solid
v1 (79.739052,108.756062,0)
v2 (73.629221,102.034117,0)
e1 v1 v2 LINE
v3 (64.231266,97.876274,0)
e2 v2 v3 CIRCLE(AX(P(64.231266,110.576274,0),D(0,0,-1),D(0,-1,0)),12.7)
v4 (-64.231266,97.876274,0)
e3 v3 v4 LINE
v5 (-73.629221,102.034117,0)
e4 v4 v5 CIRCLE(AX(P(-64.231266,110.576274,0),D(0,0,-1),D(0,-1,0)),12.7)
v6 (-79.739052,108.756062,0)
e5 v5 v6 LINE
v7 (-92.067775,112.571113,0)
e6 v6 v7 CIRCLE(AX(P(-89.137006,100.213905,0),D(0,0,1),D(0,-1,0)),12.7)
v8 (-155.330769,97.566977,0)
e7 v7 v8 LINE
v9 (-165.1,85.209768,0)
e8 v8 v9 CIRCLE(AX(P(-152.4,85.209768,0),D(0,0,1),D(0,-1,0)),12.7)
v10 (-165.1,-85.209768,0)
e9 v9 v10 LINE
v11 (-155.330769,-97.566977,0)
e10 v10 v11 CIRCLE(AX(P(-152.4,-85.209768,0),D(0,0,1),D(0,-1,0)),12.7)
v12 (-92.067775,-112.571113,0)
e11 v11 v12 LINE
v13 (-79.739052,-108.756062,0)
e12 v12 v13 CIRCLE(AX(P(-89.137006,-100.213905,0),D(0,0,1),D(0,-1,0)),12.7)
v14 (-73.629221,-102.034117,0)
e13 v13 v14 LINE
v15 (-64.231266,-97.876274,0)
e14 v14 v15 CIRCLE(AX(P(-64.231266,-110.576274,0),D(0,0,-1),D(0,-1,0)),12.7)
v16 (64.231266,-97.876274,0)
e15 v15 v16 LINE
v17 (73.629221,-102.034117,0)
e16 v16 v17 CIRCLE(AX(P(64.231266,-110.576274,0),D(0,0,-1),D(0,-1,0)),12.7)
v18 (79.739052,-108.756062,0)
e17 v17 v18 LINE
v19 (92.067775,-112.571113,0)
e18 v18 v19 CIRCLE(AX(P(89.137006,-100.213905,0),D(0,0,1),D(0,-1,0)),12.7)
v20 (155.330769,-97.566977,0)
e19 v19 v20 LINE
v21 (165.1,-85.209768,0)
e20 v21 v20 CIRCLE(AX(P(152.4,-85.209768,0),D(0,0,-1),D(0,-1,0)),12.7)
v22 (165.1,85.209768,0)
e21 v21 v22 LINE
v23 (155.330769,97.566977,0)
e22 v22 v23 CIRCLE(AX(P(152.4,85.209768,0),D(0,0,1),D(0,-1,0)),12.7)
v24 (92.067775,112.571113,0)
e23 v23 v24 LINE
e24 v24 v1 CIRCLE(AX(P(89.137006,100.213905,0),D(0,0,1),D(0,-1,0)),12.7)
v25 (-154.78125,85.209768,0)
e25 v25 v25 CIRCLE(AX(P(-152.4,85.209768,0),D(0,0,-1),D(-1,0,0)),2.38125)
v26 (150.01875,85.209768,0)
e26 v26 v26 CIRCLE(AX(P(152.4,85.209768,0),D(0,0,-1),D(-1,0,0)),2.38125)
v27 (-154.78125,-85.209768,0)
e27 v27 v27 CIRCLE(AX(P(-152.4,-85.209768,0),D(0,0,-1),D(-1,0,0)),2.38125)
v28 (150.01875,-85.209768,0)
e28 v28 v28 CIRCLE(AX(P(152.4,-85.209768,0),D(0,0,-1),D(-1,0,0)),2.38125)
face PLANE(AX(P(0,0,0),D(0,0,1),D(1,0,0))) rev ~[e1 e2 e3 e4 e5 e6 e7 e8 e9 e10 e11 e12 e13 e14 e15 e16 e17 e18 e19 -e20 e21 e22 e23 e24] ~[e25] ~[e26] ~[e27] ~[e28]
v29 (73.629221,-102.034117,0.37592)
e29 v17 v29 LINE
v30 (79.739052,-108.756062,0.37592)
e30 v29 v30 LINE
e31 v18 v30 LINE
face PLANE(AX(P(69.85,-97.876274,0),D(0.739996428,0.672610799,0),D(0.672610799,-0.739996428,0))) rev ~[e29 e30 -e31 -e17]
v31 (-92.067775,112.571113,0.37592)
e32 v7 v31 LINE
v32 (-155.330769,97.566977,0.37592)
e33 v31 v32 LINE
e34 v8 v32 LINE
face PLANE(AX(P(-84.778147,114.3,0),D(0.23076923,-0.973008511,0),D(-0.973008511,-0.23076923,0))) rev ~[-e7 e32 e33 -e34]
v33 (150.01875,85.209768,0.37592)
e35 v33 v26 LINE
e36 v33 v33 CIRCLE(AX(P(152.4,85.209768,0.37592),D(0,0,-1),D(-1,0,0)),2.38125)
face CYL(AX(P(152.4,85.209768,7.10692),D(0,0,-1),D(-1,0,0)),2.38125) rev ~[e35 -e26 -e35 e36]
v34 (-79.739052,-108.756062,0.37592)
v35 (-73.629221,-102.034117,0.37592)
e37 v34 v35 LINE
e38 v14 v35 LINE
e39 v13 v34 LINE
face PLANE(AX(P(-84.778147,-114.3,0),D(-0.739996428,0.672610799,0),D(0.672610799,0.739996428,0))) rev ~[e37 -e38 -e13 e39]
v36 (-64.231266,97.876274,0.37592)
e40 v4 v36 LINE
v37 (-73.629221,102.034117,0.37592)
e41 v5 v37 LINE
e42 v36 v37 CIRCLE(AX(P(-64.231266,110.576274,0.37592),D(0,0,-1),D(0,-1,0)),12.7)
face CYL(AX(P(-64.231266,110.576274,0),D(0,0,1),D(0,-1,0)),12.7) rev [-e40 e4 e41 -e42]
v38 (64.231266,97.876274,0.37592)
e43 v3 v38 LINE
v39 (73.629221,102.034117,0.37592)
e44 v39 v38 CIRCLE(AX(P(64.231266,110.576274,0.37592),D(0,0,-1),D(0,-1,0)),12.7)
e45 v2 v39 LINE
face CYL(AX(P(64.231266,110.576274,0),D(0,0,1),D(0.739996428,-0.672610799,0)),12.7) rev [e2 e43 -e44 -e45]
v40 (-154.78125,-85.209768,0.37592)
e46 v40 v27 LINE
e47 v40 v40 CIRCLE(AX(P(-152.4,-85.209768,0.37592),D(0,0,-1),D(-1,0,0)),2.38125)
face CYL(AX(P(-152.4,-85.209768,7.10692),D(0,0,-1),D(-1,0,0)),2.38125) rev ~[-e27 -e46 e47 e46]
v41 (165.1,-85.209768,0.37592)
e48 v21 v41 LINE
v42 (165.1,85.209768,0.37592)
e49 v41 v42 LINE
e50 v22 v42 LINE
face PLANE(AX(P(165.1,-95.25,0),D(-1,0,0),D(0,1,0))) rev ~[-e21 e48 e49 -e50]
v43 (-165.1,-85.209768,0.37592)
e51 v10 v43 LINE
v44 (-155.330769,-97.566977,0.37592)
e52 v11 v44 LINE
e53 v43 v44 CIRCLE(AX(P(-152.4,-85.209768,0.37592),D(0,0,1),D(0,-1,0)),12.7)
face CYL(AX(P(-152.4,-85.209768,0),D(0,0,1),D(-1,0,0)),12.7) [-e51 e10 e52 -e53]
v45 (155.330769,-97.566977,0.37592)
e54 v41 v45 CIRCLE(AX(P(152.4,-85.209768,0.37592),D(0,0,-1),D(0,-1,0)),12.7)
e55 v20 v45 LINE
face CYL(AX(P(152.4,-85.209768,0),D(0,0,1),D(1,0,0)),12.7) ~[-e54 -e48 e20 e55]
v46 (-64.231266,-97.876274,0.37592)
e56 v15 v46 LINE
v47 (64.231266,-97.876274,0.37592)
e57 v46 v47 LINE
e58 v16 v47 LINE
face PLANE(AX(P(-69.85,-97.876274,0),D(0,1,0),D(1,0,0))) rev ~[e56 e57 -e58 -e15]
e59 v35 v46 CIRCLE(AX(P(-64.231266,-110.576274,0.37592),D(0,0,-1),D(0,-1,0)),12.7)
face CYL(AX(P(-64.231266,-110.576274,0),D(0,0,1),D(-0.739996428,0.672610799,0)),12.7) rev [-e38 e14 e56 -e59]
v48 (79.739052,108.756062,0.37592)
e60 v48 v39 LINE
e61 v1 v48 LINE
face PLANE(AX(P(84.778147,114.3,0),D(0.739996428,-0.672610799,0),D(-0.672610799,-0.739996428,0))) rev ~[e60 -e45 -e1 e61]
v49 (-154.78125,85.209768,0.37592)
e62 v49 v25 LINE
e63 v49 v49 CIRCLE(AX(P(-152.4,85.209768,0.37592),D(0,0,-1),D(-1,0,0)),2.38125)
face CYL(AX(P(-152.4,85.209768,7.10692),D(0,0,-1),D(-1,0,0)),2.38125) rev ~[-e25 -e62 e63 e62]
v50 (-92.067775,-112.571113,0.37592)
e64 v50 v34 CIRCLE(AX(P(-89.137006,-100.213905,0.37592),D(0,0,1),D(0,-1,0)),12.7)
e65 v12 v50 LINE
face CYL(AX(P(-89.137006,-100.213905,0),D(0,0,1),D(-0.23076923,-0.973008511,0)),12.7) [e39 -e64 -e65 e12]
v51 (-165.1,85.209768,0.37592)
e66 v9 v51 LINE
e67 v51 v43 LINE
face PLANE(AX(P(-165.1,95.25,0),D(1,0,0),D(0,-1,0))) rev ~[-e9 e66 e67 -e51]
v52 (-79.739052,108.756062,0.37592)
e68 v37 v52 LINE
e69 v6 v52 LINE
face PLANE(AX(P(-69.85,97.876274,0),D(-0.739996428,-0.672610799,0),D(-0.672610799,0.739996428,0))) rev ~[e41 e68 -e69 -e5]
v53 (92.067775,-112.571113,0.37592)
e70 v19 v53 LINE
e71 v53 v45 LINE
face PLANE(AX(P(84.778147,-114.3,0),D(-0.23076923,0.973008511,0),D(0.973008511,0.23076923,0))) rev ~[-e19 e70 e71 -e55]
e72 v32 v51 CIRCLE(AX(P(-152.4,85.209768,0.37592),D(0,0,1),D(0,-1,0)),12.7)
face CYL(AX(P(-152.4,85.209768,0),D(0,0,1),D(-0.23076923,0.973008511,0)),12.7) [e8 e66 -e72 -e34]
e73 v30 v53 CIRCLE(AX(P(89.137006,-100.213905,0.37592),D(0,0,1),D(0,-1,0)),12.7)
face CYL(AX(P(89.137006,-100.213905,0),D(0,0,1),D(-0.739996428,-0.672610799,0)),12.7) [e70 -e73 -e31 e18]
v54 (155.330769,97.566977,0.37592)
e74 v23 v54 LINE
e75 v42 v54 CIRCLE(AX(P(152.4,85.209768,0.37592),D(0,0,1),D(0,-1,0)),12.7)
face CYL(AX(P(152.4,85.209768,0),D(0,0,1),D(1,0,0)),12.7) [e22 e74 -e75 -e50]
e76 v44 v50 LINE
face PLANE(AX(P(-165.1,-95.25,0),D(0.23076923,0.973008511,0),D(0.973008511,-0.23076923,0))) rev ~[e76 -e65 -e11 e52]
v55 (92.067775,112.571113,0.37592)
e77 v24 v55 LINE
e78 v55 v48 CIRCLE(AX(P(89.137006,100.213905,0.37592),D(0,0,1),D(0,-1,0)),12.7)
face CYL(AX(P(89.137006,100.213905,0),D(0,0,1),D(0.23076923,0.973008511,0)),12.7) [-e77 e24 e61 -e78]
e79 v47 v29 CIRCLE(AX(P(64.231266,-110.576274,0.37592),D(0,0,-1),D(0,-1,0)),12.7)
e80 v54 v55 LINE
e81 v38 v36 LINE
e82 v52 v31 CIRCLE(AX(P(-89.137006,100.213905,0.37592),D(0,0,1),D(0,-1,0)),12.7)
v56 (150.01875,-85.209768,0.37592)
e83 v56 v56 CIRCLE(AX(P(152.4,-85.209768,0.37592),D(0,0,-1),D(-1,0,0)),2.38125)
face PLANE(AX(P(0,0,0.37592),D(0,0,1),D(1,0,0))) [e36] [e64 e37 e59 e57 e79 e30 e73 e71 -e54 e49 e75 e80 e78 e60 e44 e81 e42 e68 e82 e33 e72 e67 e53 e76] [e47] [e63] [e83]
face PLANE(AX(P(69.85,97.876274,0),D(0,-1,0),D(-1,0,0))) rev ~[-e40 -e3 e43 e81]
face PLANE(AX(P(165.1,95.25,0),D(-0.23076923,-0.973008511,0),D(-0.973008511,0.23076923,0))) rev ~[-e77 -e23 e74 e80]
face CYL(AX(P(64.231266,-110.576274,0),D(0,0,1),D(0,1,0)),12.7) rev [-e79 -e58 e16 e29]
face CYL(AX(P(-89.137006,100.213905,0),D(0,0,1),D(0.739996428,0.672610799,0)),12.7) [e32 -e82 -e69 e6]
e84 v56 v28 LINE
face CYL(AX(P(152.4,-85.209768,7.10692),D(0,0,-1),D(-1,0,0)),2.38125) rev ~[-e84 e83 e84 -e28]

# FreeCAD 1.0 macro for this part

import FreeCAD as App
import Part
import Sketcher
from FreeCAD import Vector
Q = App.Units.Quantity


def edges_at(feature, points):
    """Names of the edges that pass closest to the given points."""
    edges = feature.Shape.Edges
    near = lambda p: min(range(len(edges)), key=lambda i: edges[i].distToShape(Part.Vertex(*p))[0])
    return sorted({f"Edge{near(p) + 1}" for p in points})

doc = App.newDocument("Part")
params = doc.addObject("Spreadsheet::Sheet", "Params")
for row, (alias, value) in enumerate([
    ("sketch1_width", "5.5 in"),
    ("sketch1_height", "7.5 in"),
    ("sketch1_length", "3.25 in"),
    ("pad1_length", "0.0148 in"),
    ("fillet_radius", "0.5 in"),
    ("sketch2_diameter", "0.1875 in"),
    ("hole_diameter", "0.1875 in"),
    ("hole_depth", "0.265 in"),
], start=1):
    params.set(f"A{row}", alias)
    params.set(f"B{row}", "=" + value)
    params.setAlias(f"B{row}", alias)

body = doc.addObject("PartDesign::Body", "Body")

sketch1 = body.newObject("Sketcher::SketchObject", "Sketch")
sketch1.AttachmentSupport = (doc.getObject("XY_Plane"), [""])
sketch1.MapMode = "FlatFace"
sketch1.addGeometry([
    Part.LineSegment(Vector(165, -95, 0), Vector(165, 95, 0)),
    Part.LineSegment(Vector(165, 95, 0), Vector(85, 114, 0)),
    Part.LineSegment(Vector(85, 114, 0), Vector(70, 98, 0)),
    Part.LineSegment(Vector(70, 98, 0), Vector(-70, 98, 0)),
    Part.LineSegment(Vector(-70, 98, 0), Vector(-85, 114, 0)),
    Part.LineSegment(Vector(-85, 114, 0), Vector(-165, 95, 0)),
    Part.LineSegment(Vector(-165, 95, 0), Vector(-165, -95, 0)),
    Part.LineSegment(Vector(-165, -95, 0), Vector(-85, -114, 0)),
    Part.LineSegment(Vector(-85, -114, 0), Vector(-70, -98, 0)),
    Part.LineSegment(Vector(-70, -98, 0), Vector(70, -98, 0)),
    Part.LineSegment(Vector(70, -98, 0), Vector(85, -114, 0)),
    Part.LineSegment(Vector(85, -114, 0), Vector(165, -95, 0)),
], False)
sketch1.addConstraint([
    Sketcher.Constraint("Coincident", 0, 2, 1, 1),
    Sketcher.Constraint("Coincident", 1, 2, 2, 1),
    Sketcher.Constraint("Coincident", 2, 2, 3, 1),
    Sketcher.Constraint("Coincident", 3, 2, 4, 1),
    Sketcher.Constraint("Coincident", 4, 2, 5, 1),
    Sketcher.Constraint("Coincident", 5, 2, 6, 1),
    Sketcher.Constraint("Coincident", 6, 2, 7, 1),
    Sketcher.Constraint("Coincident", 7, 2, 8, 1),
    Sketcher.Constraint("Coincident", 8, 2, 9, 1),
    Sketcher.Constraint("Coincident", 9, 2, 10, 1),
    Sketcher.Constraint("Coincident", 10, 2, 11, 1),
    Sketcher.Constraint("Coincident", 11, 2, 0, 1),
    Sketcher.Constraint("Vertical", 0),
    Sketcher.Constraint("Horizontal", 3),
    Sketcher.Constraint("Vertical", 6),
    Sketcher.Constraint("Horizontal", 9),
    Sketcher.Constraint("Symmetric", 0, 2, 6, 2, -1, 1),
    Sketcher.Constraint("Symmetric", 1, 2, 7, 2, -1, 1),
    Sketcher.Constraint("Symmetric", 2, 2, 8, 2, -1, 1),
    Sketcher.Constraint("Symmetric", 4, 2, 10, 2, -1, 1),
    Sketcher.Constraint("Symmetric", 1, 2, 4, 2, -2),
    Sketcher.Constraint("Parallel", 4, 10),
    Sketcher.Constraint("Parallel", 5, 11),
    Sketcher.Constraint("Horizontal", 0, 2, 5, 2),
    Sketcher.Constraint("Vertical", 3, 2, 8, 2),
    Sketcher.Constraint("DistanceX", 3, 2, 3, 1, Q("5.5 in")),
    Sketcher.Constraint("DistanceY", 0, 1, 0, 2, Q("7.5 in")),
    Sketcher.Constraint("DistanceX", 5, 2, 0, 2, Q("13 in")),
    Sketcher.Constraint("DistanceY", 7, 2, 4, 2, Q("9 in")),
    Sketcher.Constraint("Distance", 1, Q("3.25 in")),
    Sketcher.Constraint("Distance", 2, 22.194331),
])
sketch1.setExpression("Constraints[25]", "Params.sketch1_width")
sketch1.setExpression("Constraints[26]", "Params.sketch1_height")
sketch1.setExpression("Constraints[29]", "Params.sketch1_length")
pad1 = body.newObject("PartDesign::Pad", "Pad")
pad1.Profile = sketch1
pad1.setExpression("Length", "Params.pad1_length")
doc.recompute()

fillet = body.newObject("PartDesign::Fillet", "Fillet")
fillet.Base = (pad1, edges_at(pad1, [
    (-165.1, -95.25, 0.188),
    (-84.778, -114.3, 0.188),
    (-69.85, -97.876, 0.188),
    (69.85, -97.876, 0.188),
    (84.778, -114.3, 0.188),
    (165.1, -95.25, 0.188),
    (165.1, 95.25, 0.188),
    (84.778, 114.3, 0.188),
    (69.85, 97.876, 0.188),
    (-69.85, 97.876, 0.188),
    (-84.778, 114.3, 0.188),
    (-165.1, 95.25, 0.188),
]))
fillet.setExpression("Radius", "Params.fillet_radius")

sketch2 = body.newObject("Sketcher::SketchObject", "Sketch001")
sketch2.AttachmentSupport = (doc.getObject("XY_Plane"), [""])
sketch2.MapMode = "FlatFace"
sketch2.AttachmentOffset = App.Placement(Vector(0, 0, 0.0148 * 25.4), App.Rotation())
sketch2.addGeometry([
    Part.Circle(Vector(152.4, -85.2, 0), Vector(0, 0, 1), 2.4),
    Part.Circle(Vector(-152.4, -85.2, 0), Vector(0, 0, 1), 2.4),
    Part.Circle(Vector(-152.4, 85.2, 0), Vector(0, 0, 1), 2.4),
    Part.Circle(Vector(152.4, 85.2, 0), Vector(0, 0, 1), 2.4),
], False)
sketch2.addConstraint([
    Sketcher.Constraint("Equal", 0, 1),
    Sketcher.Constraint("Equal", 1, 2),
    Sketcher.Constraint("Equal", 2, 3),
    Sketcher.Constraint("Symmetric", 0, 3, 2, 3, -1, 1),
    Sketcher.Constraint("Symmetric", 1, 3, 3, 3, -1, 1),
    Sketcher.Constraint("Symmetric", 0, 3, 1, 3, -2),
    Sketcher.Constraint("Diameter", 0, Q("0.1875 in")),
    Sketcher.Constraint("DistanceX", -1, 1, 0, 3, Q("6 in")),
    Sketcher.Constraint("DistanceY", 0, 3, -1, 1, 85.209768),
])
sketch2.setExpression("Constraints[6]", "Params.sketch2_diameter")
doc.recompute()
hole = body.newObject("PartDesign::Hole", "Hole")
hole.Profile = sketch2
hole.ThreadType = "None"
hole.setExpression("Diameter", "Params.hole_diameter")
hole.DepthType = "Dimension"
hole.setExpression("Depth", "Params.hole_depth")
hole.DrillPoint = "Flat"

doc.recompute()
